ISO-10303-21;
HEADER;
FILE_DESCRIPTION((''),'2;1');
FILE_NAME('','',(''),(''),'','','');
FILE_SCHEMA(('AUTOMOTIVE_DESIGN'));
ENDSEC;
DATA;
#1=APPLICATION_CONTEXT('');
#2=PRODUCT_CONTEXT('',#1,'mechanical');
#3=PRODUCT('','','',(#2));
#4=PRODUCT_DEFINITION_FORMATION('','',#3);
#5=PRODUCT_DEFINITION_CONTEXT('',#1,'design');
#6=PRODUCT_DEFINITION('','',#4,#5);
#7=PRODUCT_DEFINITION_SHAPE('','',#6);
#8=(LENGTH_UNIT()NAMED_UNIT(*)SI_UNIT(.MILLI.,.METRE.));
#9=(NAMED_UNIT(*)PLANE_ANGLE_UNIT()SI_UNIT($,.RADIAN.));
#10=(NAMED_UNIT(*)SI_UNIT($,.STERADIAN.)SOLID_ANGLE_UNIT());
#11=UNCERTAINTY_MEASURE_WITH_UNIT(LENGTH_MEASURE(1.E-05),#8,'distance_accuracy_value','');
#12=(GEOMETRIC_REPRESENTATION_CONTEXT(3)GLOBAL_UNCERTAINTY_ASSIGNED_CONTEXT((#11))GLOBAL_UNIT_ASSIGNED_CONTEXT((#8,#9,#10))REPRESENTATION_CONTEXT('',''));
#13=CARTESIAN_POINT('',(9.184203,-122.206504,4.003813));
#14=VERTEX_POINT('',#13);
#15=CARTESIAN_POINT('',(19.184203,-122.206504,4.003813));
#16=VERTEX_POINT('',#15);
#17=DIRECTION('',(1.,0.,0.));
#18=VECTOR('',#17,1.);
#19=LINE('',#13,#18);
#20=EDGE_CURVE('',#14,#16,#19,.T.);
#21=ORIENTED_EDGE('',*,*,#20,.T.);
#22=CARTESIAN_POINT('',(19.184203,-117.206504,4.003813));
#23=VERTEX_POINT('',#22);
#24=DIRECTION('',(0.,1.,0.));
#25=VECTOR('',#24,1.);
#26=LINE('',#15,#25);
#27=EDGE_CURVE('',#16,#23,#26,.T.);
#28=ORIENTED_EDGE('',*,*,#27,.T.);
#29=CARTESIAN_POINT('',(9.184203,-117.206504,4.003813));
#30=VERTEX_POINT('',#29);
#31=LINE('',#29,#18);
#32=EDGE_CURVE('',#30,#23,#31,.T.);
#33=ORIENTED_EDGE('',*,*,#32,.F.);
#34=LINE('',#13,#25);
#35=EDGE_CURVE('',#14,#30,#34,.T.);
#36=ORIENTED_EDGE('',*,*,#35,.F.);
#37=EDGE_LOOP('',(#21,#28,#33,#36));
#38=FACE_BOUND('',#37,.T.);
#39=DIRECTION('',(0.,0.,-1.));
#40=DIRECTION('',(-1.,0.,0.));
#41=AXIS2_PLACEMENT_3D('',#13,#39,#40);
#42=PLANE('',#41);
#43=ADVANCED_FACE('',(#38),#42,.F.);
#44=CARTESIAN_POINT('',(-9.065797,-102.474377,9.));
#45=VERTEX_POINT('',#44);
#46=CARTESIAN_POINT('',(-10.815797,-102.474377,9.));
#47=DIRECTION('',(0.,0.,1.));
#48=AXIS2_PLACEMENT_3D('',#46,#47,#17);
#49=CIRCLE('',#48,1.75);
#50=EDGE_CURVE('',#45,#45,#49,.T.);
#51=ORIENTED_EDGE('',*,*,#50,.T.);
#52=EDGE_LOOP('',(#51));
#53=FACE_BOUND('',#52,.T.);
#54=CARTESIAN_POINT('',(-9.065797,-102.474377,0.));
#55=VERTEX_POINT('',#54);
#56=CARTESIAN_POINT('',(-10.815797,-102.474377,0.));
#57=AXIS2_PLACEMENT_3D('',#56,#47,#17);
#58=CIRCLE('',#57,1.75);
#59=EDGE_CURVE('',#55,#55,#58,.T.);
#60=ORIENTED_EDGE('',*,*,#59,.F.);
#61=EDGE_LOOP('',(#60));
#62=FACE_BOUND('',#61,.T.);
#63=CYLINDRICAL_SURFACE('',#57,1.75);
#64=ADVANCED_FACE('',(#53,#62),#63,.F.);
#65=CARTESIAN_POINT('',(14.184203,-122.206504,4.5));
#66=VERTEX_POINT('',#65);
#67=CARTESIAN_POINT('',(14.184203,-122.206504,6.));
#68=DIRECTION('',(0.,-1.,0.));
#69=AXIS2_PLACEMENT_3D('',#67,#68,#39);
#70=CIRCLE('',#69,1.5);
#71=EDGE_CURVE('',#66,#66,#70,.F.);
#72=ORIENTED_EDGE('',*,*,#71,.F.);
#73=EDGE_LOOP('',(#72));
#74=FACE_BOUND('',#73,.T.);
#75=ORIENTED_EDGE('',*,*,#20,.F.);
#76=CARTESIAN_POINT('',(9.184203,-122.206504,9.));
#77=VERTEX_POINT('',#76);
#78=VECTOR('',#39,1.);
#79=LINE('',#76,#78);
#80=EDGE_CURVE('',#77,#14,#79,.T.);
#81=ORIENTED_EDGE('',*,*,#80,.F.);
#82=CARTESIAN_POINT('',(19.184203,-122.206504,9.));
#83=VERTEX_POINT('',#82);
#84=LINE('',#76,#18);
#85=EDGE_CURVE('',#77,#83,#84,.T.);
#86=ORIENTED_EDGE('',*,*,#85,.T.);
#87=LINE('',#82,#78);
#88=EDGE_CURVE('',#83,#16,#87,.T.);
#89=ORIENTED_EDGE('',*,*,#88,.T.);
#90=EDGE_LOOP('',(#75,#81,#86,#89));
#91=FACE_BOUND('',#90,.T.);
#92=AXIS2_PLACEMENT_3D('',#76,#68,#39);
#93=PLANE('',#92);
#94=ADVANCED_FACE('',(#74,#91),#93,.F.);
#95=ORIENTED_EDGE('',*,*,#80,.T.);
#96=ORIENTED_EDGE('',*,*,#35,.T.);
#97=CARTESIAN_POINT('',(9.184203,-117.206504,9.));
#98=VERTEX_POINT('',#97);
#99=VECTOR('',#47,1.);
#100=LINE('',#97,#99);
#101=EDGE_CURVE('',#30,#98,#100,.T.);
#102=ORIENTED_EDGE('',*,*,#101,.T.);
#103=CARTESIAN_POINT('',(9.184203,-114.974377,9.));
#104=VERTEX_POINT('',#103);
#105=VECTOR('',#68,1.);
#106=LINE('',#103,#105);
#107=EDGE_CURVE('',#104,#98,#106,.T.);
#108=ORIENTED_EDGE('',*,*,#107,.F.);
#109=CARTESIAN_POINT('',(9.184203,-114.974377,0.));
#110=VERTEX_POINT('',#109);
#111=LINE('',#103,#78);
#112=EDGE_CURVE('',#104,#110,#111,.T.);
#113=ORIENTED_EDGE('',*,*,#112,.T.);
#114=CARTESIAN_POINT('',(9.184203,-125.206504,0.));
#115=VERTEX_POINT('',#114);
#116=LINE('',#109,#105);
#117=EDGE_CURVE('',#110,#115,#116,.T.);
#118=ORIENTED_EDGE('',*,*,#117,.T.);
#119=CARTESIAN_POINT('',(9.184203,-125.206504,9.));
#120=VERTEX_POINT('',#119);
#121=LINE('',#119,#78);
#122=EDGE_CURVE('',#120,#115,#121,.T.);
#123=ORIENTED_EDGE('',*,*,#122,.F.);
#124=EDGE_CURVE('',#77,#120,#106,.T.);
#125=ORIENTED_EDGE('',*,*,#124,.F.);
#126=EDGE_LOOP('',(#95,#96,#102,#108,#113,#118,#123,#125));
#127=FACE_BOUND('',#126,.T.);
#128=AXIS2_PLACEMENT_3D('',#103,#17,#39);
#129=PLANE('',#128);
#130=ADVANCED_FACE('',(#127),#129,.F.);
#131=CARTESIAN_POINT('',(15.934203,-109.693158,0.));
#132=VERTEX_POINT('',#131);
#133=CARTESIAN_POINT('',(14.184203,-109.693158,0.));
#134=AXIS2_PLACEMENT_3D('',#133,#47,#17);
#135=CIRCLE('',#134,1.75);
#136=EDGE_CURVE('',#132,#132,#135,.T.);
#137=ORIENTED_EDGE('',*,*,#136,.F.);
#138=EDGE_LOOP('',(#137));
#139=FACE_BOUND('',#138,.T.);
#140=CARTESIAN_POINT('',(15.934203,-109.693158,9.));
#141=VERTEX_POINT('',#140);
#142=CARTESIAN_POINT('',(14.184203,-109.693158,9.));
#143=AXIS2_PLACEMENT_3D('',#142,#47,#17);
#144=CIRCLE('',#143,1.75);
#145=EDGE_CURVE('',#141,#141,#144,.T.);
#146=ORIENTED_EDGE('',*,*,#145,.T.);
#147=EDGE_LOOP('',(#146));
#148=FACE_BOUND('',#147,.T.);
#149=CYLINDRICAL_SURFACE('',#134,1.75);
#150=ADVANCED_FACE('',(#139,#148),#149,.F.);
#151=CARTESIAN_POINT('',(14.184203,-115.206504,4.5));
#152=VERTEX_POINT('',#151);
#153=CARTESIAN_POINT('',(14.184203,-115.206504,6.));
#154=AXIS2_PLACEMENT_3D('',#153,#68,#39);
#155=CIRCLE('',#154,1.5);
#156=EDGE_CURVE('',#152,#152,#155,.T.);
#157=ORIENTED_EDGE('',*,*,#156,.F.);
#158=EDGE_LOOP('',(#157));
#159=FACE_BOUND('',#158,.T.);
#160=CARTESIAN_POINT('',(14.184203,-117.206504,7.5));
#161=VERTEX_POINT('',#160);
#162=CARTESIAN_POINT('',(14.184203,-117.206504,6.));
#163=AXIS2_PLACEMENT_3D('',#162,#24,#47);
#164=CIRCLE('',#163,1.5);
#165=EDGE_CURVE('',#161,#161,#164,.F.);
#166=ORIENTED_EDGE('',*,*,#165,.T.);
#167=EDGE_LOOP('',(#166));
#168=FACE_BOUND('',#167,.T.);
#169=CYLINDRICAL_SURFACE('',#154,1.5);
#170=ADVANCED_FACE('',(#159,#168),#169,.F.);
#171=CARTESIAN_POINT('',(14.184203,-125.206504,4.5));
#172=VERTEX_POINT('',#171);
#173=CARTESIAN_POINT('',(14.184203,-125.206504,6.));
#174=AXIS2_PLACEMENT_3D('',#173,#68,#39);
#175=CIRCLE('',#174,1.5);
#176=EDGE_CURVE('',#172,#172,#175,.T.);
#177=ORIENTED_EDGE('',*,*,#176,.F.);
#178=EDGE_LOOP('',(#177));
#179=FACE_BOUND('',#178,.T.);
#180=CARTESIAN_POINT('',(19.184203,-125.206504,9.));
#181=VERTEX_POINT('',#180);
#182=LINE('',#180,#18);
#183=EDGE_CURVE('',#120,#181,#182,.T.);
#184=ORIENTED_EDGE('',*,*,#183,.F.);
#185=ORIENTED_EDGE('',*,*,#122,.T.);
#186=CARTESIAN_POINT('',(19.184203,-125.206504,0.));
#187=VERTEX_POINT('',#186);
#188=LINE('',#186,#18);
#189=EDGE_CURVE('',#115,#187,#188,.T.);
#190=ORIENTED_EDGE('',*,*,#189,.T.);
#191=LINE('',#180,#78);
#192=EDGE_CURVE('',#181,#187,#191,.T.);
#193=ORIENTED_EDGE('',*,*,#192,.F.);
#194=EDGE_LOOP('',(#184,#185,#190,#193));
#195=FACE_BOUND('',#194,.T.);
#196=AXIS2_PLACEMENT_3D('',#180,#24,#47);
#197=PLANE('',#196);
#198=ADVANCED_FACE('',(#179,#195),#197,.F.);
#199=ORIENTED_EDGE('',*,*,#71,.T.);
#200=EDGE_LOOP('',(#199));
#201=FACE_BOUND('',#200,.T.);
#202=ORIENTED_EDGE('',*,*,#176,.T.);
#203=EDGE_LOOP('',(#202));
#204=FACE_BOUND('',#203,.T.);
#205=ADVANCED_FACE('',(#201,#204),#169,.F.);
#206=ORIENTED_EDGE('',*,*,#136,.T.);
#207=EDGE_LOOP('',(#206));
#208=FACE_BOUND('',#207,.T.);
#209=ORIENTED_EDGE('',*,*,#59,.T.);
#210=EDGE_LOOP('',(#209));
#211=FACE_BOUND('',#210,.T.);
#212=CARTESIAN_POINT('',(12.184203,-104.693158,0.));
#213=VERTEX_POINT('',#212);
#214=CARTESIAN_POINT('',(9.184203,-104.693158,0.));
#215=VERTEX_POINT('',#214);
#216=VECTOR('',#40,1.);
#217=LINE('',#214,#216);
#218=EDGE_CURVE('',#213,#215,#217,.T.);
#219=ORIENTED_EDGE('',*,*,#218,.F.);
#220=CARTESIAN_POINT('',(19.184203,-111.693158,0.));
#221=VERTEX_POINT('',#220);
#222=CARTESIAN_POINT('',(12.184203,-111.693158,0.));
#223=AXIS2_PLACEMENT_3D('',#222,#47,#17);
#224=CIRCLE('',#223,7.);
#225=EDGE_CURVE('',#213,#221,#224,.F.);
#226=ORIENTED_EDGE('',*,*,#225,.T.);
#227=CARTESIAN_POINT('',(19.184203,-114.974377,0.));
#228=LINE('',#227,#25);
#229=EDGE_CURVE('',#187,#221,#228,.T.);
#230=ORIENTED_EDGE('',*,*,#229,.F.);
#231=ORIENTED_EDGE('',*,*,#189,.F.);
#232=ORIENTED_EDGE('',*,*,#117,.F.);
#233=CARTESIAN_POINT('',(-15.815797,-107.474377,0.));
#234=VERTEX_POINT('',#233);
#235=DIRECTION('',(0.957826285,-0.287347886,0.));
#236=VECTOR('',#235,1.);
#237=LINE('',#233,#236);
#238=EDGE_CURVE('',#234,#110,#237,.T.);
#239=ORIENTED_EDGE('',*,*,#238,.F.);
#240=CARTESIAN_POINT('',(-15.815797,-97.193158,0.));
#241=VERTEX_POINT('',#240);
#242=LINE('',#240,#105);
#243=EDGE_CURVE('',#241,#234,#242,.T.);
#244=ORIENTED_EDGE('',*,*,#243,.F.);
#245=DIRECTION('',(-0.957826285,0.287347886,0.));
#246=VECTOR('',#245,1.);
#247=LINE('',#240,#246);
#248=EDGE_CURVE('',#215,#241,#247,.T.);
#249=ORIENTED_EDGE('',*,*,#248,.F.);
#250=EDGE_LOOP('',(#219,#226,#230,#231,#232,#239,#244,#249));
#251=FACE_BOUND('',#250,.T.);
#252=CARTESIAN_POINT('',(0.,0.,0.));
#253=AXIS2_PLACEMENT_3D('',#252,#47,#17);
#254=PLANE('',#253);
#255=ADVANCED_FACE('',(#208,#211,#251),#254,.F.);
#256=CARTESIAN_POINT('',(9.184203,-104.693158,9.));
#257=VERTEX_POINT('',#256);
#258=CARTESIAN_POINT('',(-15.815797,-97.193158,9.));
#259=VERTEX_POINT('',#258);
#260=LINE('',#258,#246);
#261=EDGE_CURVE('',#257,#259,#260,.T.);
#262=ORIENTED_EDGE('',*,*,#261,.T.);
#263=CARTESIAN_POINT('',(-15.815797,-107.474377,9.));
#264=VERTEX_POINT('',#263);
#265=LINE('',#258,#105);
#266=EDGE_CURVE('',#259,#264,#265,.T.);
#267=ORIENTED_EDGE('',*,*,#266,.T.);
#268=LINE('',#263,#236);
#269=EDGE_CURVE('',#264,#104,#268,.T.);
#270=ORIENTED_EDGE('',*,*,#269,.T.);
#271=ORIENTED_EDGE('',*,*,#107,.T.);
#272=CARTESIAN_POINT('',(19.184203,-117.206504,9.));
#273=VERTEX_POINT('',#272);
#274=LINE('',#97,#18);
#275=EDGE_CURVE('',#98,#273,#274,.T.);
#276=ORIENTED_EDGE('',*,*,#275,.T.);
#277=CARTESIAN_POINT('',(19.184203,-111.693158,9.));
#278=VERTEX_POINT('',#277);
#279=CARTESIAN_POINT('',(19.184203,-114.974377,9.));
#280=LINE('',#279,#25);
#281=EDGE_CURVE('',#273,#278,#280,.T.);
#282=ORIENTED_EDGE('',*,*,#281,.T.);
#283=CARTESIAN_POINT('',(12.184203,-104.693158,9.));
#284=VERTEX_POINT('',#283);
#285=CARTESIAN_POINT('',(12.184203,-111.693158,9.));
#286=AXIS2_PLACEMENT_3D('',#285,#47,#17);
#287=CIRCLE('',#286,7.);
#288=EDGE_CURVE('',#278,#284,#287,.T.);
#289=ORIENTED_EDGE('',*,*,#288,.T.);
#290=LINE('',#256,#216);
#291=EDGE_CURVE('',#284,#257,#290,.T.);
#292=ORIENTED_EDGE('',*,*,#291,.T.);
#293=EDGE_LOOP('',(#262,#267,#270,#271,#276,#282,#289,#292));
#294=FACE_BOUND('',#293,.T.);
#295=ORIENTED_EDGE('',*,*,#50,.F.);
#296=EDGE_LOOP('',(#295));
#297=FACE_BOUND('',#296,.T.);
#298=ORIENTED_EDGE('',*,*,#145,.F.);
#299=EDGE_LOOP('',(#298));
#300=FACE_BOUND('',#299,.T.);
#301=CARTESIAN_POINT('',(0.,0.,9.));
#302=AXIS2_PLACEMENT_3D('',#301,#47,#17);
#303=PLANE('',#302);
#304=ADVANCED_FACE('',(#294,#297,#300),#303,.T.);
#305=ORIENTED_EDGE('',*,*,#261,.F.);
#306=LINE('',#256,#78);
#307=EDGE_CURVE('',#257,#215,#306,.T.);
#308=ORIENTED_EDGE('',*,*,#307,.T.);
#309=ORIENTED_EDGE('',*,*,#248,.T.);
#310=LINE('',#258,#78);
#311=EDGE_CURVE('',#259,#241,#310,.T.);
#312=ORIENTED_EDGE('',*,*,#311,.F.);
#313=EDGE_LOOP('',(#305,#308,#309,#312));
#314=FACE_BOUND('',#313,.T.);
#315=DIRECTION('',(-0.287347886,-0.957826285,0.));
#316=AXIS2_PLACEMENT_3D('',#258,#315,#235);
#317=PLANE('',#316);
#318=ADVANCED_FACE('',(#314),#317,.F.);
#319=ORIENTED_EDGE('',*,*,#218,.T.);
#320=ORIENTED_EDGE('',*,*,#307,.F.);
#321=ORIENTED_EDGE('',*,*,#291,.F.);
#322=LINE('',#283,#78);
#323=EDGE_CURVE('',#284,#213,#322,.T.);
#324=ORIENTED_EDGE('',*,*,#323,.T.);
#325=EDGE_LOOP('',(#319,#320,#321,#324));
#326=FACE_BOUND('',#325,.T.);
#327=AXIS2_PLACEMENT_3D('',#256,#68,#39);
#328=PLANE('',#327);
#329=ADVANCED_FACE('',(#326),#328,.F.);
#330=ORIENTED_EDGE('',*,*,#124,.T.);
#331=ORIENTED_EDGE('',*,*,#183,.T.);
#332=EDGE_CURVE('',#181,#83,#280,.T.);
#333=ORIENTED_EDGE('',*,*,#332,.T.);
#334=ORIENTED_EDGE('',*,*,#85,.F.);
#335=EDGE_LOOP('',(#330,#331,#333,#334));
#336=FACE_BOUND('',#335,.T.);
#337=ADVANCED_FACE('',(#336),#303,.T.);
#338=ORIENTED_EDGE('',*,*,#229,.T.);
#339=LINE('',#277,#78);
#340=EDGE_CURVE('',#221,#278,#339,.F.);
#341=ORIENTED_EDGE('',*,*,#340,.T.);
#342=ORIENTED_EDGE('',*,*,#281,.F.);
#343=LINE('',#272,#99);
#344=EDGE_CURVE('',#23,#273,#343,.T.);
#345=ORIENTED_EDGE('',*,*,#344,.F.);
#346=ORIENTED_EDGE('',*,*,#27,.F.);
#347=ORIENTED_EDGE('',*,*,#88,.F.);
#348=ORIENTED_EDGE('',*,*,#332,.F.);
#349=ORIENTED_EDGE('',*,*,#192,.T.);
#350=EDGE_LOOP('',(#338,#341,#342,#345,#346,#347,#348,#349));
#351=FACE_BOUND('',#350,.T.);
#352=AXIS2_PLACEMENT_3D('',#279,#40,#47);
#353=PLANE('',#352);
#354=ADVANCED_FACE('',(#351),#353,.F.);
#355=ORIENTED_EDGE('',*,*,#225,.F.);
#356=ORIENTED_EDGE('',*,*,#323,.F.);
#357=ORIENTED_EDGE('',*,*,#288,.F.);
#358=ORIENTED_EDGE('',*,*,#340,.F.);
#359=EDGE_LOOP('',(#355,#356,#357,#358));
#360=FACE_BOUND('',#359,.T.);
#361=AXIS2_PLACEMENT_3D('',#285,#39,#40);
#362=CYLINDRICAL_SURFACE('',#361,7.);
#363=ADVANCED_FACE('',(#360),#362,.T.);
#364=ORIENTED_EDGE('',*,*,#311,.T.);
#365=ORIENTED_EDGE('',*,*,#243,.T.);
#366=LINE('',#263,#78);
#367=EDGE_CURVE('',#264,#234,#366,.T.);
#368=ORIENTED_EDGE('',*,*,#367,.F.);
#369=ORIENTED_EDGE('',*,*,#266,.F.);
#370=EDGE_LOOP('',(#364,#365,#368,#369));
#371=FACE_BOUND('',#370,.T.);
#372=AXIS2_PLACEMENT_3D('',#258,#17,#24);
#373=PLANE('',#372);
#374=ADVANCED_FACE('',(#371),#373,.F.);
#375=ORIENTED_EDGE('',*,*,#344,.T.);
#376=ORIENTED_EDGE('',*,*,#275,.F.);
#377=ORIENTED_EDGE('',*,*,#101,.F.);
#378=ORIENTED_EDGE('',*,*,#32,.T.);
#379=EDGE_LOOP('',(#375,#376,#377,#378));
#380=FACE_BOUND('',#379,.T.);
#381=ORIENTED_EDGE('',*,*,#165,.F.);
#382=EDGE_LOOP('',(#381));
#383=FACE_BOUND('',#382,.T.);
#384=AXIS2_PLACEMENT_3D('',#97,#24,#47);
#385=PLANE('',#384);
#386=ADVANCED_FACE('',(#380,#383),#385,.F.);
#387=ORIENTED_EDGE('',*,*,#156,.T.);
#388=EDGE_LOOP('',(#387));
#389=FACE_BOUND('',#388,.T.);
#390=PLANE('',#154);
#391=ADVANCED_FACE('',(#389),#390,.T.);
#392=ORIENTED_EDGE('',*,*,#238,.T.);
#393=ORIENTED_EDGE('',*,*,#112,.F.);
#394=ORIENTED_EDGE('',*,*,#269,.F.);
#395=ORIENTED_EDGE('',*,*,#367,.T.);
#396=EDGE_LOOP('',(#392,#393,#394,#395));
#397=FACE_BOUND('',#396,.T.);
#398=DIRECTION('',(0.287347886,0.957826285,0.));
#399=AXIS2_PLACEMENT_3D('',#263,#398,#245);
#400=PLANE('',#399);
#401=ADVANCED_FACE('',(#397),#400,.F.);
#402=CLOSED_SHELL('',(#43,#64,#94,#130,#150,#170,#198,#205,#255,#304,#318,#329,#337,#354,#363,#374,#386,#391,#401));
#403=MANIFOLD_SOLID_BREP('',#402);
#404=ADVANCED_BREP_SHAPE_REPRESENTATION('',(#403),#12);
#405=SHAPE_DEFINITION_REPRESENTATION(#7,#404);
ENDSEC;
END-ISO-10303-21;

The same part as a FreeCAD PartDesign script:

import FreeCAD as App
import Part
import Sketcher
Q = App.Units.Quantity


def edges_at(feature, points):
    """Names of the edges that pass closest to the given points."""
    edges = feature.Shape.Edges
    near = lambda p: min(range(len(edges)), key=lambda i: edges[i].distToShape(Part.Vertex(*p))[0])
    return sorted({f"Edge{near(p) + 1}" for p in points})


def add_polygon(sketch, points):
    """Adds a closed chain of lines whose ends are joined by coincident constraints."""
    first, n = sketch.GeometryCount, len(points)
    for a, b in zip(points, points[1:] + points[:1]):
        sketch.addGeometry(Part.LineSegment(App.Vector(*a, 0), App.Vector(*b, 0)), False)
    for i in range(n):
        sketch.addConstraint(Sketcher.Constraint("Coincident", first + i, 2, first + (i + 1) % n, 1))

doc = App.newDocument("Part")
body = doc.addObject("PartDesign::Body", "Body")

sketch1 = body.newObject("Sketcher::SketchObject", "Sketch")
sketch1.AttachmentSupport = (doc.getObject("XY_Plane"), [""])
sketch1.MapMode = "FlatFace"
add_polygon(sketch1, [(-16, -97), (-16, -107), (9, -115), (9, -125), (19, -125), (19, -105), (9, -105)])
sketch1.addConstraint(Sketcher.Constraint("Vertical", 0))
sketch1.addConstraint(Sketcher.Constraint("Vertical", 2))
sketch1.addConstraint(Sketcher.Constraint("Horizontal", 3))
sketch1.addConstraint(Sketcher.Constraint("Vertical", 4))
sketch1.addConstraint(Sketcher.Constraint("Horizontal", 5))
sketch1.addConstraint(Sketcher.Constraint("Parallel", 1, 6))
sketch1.addConstraint(Sketcher.Constraint("Vertical", 2, 2, 5, 2))
sketch1.addConstraint(Sketcher.Constraint("DistanceX", 3, 1, 3, 2, Q("10 mm")))
sketch1.addConstraint(Sketcher.Constraint("DistanceX", 0, 2, 1, 2, Q("25 mm")))
sketch1.addConstraint(Sketcher.Constraint("DistanceY", 1, 2, 0, 2, Q("7.5 mm")))
sketch1.addConstraint(Sketcher.Constraint("DistanceY", 0, 2, 0, 1, Q("10.281219 mm")))
sketch1.addConstraint(Sketcher.Constraint("DistanceY", 2, 2, 2, 1, Q("10.232127 mm")))
sketch1.addConstraint(Sketcher.Constraint("DistanceX", 0, 2, -1, 1, Q("15.815797 mm")))
sketch1.addConstraint(Sketcher.Constraint("DistanceY", 0, 2, -1, 1, Q("107.474377 mm")))
pad1 = body.newObject("PartDesign::Pad", "Pad")
pad1.Profile = sketch1
pad1.Length = 9

sketch2 = body.newObject("Sketcher::SketchObject", "Sketch001")
sketch2.AttachmentSupport = (doc.getObject("XY_Plane"), [""])
sketch2.MapMode = "FlatFace"
sketch2.AttachmentOffset = App.Placement(App.Vector(0, 0, 9), App.Rotation())
sketch2.addGeometry(Part.Circle(App.Vector(14.2, -109.7, 0), App.Vector(0, 0, 1), 1.8), False)
sketch2.addGeometry(Part.Circle(App.Vector(-10.8, -102.5, 0), App.Vector(0, 0, 1), 1.8), False)
sketch2.addConstraint(Sketcher.Constraint("Equal", 0, 1))
sketch2.addConstraint(Sketcher.Constraint("Diameter", 0, Q("3.5 mm")))
sketch2.addConstraint(Sketcher.Constraint("DistanceX", 1, 3, 0, 3, Q("25 mm")))
sketch2.addConstraint(Sketcher.Constraint("DistanceY", 0, 3, 1, 3, Q("7.218781 mm")))
sketch2.addConstraint(Sketcher.Constraint("DistanceX", -1, 1, 0, 3, Q("14.184203 mm")))
sketch2.addConstraint(Sketcher.Constraint("DistanceY", 0, 3, -1, 1, Q("109.693158 mm")))
pocket1 = body.newObject("PartDesign::Pocket", "Pocket")
pocket1.Profile = sketch2
pocket1.Length = 9

sketch3 = body.newObject("Sketcher::SketchObject", "Sketch002")
sketch3.AttachmentSupport = (doc.getObject("XZ_Plane"), [""])
sketch3.MapMode = "FlatFace"
sketch3.AttachmentOffset = App.Placement(App.Vector(0, 0, 125.206504), App.Rotation())
sketch3.addGeometry(Part.Circle(App.Vector(14.2, 6, 0), App.Vector(0, 0, 1), 1.5), False)
sketch3.addConstraint(Sketcher.Constraint("Diameter", 0, Q("3 mm")))
sketch3.addConstraint(Sketcher.Constraint("DistanceY", -1, 1, 0, 3, Q("6 mm")))
sketch3.addConstraint(Sketcher.Constraint("DistanceX", -1, 1, 0, 3, Q("14.184203 mm")))
pocket2 = body.newObject("PartDesign::Pocket", "Pocket001")
pocket2.Profile = sketch3
pocket2.Length = 10

sketch4 = body.newObject("Sketcher::SketchObject", "Sketch003")
sketch4.AttachmentSupport = (doc.getObject("YZ_Plane"), [""])
sketch4.MapMode = "FlatFace"
sketch4.AttachmentOffset = App.Placement(App.Vector(0, 0, 19.184203), App.Rotation())
add_polygon(sketch4, [(-117.2, 9), (-122.2, 9), (-122.2, 4), (-117.2, 4)])
sketch4.addConstraint(Sketcher.Constraint("Horizontal", 0))
sketch4.addConstraint(Sketcher.Constraint("Vertical", 1))
sketch4.addConstraint(Sketcher.Constraint("Horizontal", 2))
sketch4.addConstraint(Sketcher.Constraint("Vertical", 3))
sketch4.addConstraint(Sketcher.Constraint("DistanceX", 0, 2, 0, 1, Q("5 mm")))
sketch4.addConstraint(Sketcher.Constraint("DistanceY", -1, 1, 0, 2, Q("9 mm")))
sketch4.addConstraint(Sketcher.Constraint("DistanceY", 1, 2, 1, 1, Q("4.996187 mm")))
sketch4.addConstraint(Sketcher.Constraint("DistanceX", 0, 2, -1, 1, Q("122.206504 mm")))
pocket3 = body.newObject("PartDesign::Pocket", "Pocket002")
pocket3.Profile = sketch4
pocket3.Length = 10
doc.recompute()

fillet = body.newObject("PartDesign::Fillet", "Fillet")
fillet.Base = (pocket3, edges_at(pocket3, [(19.184, -104.693, 4.5)]))
fillet.Radius = 7

doc.recompute()
